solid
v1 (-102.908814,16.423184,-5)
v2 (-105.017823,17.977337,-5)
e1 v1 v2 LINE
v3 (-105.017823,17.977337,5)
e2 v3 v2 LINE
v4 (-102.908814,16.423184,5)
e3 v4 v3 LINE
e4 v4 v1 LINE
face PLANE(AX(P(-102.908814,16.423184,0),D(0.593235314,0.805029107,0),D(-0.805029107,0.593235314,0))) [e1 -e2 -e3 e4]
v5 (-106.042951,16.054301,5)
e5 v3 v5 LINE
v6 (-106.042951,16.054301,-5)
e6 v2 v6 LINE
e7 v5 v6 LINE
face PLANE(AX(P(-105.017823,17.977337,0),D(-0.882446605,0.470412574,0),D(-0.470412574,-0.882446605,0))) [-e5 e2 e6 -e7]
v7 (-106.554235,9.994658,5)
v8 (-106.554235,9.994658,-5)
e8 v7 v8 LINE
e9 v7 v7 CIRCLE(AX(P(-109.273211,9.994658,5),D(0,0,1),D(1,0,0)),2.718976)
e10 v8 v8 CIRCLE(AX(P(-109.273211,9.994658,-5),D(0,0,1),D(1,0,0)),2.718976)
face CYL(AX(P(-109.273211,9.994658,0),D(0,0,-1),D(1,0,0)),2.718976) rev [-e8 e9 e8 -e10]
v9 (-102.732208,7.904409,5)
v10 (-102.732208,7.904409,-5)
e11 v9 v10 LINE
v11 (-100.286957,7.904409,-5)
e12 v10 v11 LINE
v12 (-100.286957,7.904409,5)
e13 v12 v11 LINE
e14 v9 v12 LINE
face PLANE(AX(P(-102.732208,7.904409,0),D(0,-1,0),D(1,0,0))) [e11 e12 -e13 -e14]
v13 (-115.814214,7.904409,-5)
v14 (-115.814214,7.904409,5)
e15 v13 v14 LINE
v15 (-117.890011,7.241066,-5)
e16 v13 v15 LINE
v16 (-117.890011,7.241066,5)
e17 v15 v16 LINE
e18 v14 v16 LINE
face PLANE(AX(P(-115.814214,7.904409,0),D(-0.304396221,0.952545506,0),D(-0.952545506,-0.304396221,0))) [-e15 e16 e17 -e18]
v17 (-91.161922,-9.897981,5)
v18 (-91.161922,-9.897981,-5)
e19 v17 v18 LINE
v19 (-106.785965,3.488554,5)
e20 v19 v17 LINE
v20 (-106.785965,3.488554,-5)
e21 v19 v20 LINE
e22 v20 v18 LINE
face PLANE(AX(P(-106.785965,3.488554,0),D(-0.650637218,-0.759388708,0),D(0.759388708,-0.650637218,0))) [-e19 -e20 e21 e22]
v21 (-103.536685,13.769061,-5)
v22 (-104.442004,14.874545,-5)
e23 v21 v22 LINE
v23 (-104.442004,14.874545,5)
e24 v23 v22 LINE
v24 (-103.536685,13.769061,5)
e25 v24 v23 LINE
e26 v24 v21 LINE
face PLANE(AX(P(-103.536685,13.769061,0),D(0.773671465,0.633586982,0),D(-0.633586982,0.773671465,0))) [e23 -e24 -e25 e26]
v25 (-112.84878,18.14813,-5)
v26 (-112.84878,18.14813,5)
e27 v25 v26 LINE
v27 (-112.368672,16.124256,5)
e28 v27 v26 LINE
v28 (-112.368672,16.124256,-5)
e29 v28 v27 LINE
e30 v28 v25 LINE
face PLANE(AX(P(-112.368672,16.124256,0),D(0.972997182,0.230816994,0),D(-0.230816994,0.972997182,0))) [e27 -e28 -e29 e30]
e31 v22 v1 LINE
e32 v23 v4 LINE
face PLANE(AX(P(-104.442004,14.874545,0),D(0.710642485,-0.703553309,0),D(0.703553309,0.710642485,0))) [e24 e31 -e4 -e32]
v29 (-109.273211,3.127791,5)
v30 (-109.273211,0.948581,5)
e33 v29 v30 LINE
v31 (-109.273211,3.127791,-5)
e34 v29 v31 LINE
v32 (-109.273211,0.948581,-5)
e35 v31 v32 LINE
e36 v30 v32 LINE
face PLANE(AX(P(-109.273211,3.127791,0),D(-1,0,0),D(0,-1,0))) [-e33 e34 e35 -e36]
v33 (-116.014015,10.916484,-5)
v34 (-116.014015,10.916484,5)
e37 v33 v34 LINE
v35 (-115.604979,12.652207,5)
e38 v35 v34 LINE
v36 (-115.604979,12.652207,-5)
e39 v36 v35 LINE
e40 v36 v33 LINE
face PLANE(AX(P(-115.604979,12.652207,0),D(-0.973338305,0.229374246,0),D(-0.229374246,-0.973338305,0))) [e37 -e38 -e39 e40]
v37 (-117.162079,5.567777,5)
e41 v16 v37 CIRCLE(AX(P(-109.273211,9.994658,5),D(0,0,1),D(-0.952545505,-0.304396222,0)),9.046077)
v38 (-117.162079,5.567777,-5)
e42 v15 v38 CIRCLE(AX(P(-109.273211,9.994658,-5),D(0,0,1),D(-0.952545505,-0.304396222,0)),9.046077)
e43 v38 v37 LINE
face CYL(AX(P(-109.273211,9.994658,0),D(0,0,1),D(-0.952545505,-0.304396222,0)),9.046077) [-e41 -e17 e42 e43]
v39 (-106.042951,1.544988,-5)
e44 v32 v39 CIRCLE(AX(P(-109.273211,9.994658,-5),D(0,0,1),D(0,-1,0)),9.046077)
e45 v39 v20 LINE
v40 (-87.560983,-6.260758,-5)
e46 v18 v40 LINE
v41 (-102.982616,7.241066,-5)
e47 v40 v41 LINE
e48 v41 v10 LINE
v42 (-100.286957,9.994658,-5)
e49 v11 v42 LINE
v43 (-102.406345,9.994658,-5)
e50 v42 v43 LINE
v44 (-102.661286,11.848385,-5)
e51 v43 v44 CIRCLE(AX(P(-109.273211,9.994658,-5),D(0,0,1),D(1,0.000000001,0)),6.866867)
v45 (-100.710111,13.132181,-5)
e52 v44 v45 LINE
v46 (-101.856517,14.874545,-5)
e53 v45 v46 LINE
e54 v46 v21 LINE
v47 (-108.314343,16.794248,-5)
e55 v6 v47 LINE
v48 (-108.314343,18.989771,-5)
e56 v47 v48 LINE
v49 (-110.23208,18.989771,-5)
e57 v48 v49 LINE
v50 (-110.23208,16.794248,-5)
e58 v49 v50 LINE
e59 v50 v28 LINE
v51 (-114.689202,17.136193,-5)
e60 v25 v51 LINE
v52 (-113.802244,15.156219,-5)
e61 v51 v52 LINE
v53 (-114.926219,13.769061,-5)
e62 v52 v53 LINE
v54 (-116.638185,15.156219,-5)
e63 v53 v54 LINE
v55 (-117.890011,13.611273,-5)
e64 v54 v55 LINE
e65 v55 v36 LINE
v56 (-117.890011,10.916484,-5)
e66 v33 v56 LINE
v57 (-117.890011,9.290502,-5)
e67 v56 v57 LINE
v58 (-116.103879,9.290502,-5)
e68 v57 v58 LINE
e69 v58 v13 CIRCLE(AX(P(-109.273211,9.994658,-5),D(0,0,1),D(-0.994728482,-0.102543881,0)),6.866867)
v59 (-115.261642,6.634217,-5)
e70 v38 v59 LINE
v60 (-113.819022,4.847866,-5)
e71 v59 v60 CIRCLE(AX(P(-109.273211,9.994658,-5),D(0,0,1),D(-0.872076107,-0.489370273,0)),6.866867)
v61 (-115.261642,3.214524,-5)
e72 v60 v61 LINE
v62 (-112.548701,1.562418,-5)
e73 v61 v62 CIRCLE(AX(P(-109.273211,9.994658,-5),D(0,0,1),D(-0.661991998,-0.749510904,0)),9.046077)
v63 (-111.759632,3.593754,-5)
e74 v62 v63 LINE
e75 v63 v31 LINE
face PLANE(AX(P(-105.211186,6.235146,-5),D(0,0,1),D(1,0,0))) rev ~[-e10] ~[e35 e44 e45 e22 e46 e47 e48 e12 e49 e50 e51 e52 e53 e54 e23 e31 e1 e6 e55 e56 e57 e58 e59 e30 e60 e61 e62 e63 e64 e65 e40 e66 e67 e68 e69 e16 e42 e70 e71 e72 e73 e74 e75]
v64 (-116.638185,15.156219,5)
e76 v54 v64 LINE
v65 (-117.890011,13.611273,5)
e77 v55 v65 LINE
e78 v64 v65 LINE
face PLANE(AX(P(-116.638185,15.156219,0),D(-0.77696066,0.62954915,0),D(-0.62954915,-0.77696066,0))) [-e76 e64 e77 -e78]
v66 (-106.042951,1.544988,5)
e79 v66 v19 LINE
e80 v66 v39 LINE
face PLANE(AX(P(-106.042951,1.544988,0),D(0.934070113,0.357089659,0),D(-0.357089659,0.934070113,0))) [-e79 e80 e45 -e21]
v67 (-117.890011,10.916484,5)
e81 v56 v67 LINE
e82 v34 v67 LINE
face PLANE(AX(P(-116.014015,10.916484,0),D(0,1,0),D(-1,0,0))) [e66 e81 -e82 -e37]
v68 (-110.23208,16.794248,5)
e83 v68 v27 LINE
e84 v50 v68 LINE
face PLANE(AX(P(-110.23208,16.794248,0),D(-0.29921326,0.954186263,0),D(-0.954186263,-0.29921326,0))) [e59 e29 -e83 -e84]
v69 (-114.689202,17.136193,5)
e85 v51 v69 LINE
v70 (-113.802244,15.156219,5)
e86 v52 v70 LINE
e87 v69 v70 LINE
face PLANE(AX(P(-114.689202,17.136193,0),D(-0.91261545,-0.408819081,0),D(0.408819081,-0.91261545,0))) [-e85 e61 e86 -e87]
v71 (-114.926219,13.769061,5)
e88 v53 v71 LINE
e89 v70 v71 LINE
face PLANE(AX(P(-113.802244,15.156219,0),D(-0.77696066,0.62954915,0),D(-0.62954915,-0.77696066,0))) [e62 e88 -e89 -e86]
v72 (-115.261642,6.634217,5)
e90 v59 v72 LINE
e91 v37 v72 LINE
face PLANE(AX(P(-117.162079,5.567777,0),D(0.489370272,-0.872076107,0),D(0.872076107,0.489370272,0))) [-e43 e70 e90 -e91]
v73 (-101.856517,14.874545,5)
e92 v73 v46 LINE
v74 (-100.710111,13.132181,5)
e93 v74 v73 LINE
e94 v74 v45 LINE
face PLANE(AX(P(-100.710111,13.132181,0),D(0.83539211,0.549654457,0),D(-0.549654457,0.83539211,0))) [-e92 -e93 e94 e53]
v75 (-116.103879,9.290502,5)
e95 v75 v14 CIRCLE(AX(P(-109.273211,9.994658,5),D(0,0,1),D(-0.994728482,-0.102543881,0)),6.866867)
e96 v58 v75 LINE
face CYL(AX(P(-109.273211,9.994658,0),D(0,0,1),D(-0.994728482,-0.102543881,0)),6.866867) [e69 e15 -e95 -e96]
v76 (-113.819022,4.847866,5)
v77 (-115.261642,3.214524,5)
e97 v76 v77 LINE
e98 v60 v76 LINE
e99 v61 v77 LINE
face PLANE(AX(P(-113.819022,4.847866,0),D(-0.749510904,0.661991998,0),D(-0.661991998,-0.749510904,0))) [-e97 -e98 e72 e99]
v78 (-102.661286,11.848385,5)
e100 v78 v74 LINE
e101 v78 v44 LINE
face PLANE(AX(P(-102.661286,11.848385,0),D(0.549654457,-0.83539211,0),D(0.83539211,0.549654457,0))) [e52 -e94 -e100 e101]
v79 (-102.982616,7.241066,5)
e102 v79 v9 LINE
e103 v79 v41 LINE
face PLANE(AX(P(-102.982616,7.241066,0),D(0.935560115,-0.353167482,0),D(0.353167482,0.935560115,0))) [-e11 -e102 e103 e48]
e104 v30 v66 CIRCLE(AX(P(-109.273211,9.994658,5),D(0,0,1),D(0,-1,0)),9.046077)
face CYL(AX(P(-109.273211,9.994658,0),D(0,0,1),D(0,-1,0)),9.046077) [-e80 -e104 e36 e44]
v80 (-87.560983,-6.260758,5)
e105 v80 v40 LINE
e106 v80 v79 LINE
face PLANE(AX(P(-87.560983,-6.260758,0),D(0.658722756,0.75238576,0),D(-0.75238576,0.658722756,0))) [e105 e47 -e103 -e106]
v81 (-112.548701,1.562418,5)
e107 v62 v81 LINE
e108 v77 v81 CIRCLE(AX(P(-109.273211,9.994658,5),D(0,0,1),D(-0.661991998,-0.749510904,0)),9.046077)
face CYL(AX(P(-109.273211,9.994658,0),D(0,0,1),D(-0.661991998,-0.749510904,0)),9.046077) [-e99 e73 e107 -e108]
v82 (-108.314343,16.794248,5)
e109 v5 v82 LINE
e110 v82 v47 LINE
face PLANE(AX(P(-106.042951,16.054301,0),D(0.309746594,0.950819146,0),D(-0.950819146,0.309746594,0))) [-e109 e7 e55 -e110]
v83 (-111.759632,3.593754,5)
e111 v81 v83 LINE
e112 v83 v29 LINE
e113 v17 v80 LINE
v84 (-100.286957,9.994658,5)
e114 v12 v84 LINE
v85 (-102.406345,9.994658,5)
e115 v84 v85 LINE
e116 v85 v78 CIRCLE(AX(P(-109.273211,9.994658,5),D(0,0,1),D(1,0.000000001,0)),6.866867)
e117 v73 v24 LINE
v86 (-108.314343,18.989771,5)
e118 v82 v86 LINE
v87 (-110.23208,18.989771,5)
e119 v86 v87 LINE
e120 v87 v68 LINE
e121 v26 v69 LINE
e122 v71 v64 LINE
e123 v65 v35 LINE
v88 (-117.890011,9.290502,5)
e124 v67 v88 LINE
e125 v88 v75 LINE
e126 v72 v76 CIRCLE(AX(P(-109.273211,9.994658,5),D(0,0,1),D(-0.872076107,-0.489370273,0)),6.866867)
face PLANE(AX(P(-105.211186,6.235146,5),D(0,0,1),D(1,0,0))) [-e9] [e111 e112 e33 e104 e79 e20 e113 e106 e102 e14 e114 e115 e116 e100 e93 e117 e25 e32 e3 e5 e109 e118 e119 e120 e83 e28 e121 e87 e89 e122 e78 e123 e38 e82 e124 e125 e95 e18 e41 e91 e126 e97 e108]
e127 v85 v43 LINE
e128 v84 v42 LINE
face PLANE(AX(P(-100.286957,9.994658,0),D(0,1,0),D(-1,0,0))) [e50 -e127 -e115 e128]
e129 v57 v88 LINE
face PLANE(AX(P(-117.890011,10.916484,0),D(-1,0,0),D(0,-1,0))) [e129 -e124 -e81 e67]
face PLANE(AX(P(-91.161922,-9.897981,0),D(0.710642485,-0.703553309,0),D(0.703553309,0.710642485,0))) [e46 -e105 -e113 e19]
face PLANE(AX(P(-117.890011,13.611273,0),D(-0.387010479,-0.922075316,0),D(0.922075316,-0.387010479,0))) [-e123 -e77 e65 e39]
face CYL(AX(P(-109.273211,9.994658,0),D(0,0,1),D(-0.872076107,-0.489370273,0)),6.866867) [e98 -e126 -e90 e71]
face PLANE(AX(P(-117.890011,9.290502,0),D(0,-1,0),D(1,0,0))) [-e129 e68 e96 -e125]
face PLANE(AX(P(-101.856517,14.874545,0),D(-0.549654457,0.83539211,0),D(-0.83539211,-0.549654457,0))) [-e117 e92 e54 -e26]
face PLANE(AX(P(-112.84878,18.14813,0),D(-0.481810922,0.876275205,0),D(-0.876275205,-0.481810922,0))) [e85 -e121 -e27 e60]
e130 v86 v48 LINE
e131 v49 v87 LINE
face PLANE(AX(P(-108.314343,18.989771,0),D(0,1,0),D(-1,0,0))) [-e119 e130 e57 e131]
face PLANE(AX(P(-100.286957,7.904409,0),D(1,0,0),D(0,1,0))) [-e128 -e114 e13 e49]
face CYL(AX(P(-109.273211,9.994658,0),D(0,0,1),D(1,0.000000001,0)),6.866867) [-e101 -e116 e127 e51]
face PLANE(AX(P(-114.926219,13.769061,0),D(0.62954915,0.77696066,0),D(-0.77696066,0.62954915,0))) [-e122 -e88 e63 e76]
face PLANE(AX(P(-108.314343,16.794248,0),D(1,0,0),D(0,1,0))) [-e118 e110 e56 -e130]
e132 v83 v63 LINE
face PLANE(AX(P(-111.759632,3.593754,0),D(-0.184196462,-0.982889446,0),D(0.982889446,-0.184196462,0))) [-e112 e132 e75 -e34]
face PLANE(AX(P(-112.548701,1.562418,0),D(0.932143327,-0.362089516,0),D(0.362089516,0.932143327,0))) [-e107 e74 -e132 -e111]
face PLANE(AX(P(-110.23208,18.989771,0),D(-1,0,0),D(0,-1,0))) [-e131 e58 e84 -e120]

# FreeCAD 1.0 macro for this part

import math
import FreeCAD as App
import Part
import Sketcher
Q = App.Units.Quantity

doc = App.newDocument("Part")
params = doc.addObject("Spreadsheet::Sheet", "Params")
for row, (alias, value) in enumerate([
    ("pad1_length", "10 mm"),
], start=1):
    params.set(f"A{row}", alias)
    params.set(f"B{row}", "=" + value)
    params.setAlias(f"B{row}", alias)

body = doc.addObject("PartDesign::Body", "Body")

sketch1 = doc.addObject("Sketcher::SketchObject", "Sketch")
body.addObject(sketch1)
sketch1.AttachmentSupport = (doc.XY_Plane, [""])
sketch1.MapMode = "FlatFace"
sketch1.addGeometry([
    Part.LineSegment(App.Vector(-108.314343, 18.989771, 0), App.Vector(-110.23208, 18.989771, 0)),
    Part.LineSegment(App.Vector(-110.23208, 18.989771, 0), App.Vector(-110.23208, 16.794248, 0)),
    Part.LineSegment(App.Vector(-110.23208, 16.794248, 0), App.Vector(-112.368672, 16.124256, 0)),
    Part.LineSegment(App.Vector(-112.368672, 16.124256, 0), App.Vector(-112.84878, 18.14813, 0)),
    Part.LineSegment(App.Vector(-112.84878, 18.14813, 0), App.Vector(-114.689202, 17.136193, 0)),
    Part.LineSegment(App.Vector(-114.689202, 17.136193, 0), App.Vector(-113.802244, 15.156219, 0)),
    Part.LineSegment(App.Vector(-113.802244, 15.156219, 0), App.Vector(-114.926219, 13.769061, 0)),
    Part.LineSegment(App.Vector(-114.926219, 13.769061, 0), App.Vector(-116.638185, 15.156219, 0)),
    Part.LineSegment(App.Vector(-116.638185, 15.156219, 0), App.Vector(-117.890011, 13.611273, 0)),
    Part.LineSegment(App.Vector(-117.890011, 13.611273, 0), App.Vector(-115.604979, 12.652207, 0)),
    Part.LineSegment(App.Vector(-115.604979, 12.652207, 0), App.Vector(-116.014015, 10.916484, 0)),
    Part.LineSegment(App.Vector(-116.014015, 10.916484, 0), App.Vector(-117.890011, 10.916484, 0)),
    Part.LineSegment(App.Vector(-117.890011, 10.916484, 0), App.Vector(-117.890011, 9.290502, 0)),
    Part.LineSegment(App.Vector(-117.890011, 9.290502, 0), App.Vector(-116.103879, 9.290502, 0)),
    Part.ArcOfCircle(Part.Circle(App.Vector(-109.273211, 9.994658, 0), App.Vector(0, 0, 1), 6.866867), math.radians(-174.114323), math.radians(-162.278157)),
    Part.LineSegment(App.Vector(-115.814214, 7.904409, 0), App.Vector(-117.890011, 7.241066, 0)),
    Part.ArcOfCircle(Part.Circle(App.Vector(-109.273211, 9.994658, 0), App.Vector(0, 0, 1), 9.046077), math.radians(-162.278157), math.radians(-150.7008)),
    Part.LineSegment(App.Vector(-117.162079, 5.567777, 0), App.Vector(-115.261642, 6.634217, 0)),
    Part.ArcOfCircle(Part.Circle(App.Vector(-109.273211, 9.994658, 0), App.Vector(0, 0, 1), 6.866867), math.radians(-150.7008), math.radians(-131.451971)),
    Part.LineSegment(App.Vector(-113.819022, 4.847866, 0), App.Vector(-115.261642, 3.214524, 0)),
    Part.ArcOfCircle(Part.Circle(App.Vector(-109.273211, 9.994658, 0), App.Vector(0, 0, 1), 9.046077), math.radians(-131.451971), math.radians(-111.228576)),
    Part.LineSegment(App.Vector(-112.548701, 1.562418, 0), App.Vector(-111.759632, 3.593754, 0)),
    Part.LineSegment(App.Vector(-111.759632, 3.593754, 0), App.Vector(-109.273211, 3.127791, 0)),
    Part.LineSegment(App.Vector(-109.273211, 3.127791, 0), App.Vector(-109.273211, 0.948581, 0)),
    Part.ArcOfCircle(Part.Circle(App.Vector(-109.273211, 9.994658, 0), App.Vector(0, 0, 1), 9.046077), math.radians(-90), math.radians(-69.078431)),
    Part.LineSegment(App.Vector(-106.042951, 1.544988, 0), App.Vector(-106.785965, 3.488554, 0)),
    Part.LineSegment(App.Vector(-106.785965, 3.488554, 0), App.Vector(-91.161922, -9.897981, 0)),
    Part.LineSegment(App.Vector(-91.161922, -9.897981, 0), App.Vector(-87.560983, -6.260758, 0)),
    Part.LineSegment(App.Vector(-87.560983, -6.260758, 0), App.Vector(-102.982616, 7.241066, 0)),
    Part.LineSegment(App.Vector(-102.982616, 7.241066, 0), App.Vector(-102.732208, 7.904409, 0)),
    Part.LineSegment(App.Vector(-102.732208, 7.904409, 0), App.Vector(-100.286957, 7.904409, 0)),
    Part.LineSegment(App.Vector(-100.286957, 7.904409, 0), App.Vector(-100.286957, 9.994658, 0)),
    Part.LineSegment(App.Vector(-100.286957, 9.994658, 0), App.Vector(-102.406345, 9.994658, 0)),
    Part.ArcOfCircle(Part.Circle(App.Vector(-109.273211, 9.994658, 0), App.Vector(0, 0, 1), 6.866867), math.radians(0), math.radians(15.661441)),
    Part.LineSegment(App.Vector(-102.661286, 11.848385, 0), App.Vector(-100.710111, 13.132181, 0)),
    Part.LineSegment(App.Vector(-100.710111, 13.132181, 0), App.Vector(-101.856517, 14.874545, 0)),
    Part.LineSegment(App.Vector(-101.856517, 14.874545, 0), App.Vector(-103.536685, 13.769061, 0)),
    Part.LineSegment(App.Vector(-103.536685, 13.769061, 0), App.Vector(-104.442004, 14.874545, 0)),
    Part.LineSegment(App.Vector(-104.442004, 14.874545, 0), App.Vector(-102.908814, 16.423184, 0)),
    Part.LineSegment(App.Vector(-102.908814, 16.423184, 0), App.Vector(-105.017823, 17.977337, 0)),
    Part.LineSegment(App.Vector(-105.017823, 17.977337, 0), App.Vector(-106.042951, 16.054301, 0)),
    Part.LineSegment(App.Vector(-106.042951, 16.054301, 0), App.Vector(-108.314343, 16.794248, 0)),
    Part.LineSegment(App.Vector(-108.314343, 16.794248, 0), App.Vector(-108.314343, 18.989771, 0)),
    Part.Circle(App.Vector(-109.273211, 9.994658, 0), App.Vector(0, 0, 1), 2.718976),
], False)
sketch1.addConstraint([
    Sketcher.Constraint("Coincident", 0, 2, 1, 1),
    Sketcher.Constraint("Coincident", 1, 2, 2, 1),
    Sketcher.Constraint("Coincident", 2, 2, 3, 1),
    Sketcher.Constraint("Coincident", 3, 2, 4, 1),
    Sketcher.Constraint("Coincident", 4, 2, 5, 1),
    Sketcher.Constraint("Coincident", 5, 2, 6, 1),
    Sketcher.Constraint("Coincident", 6, 2, 7, 1),
    Sketcher.Constraint("Coincident", 7, 2, 8, 1),
    Sketcher.Constraint("Coincident", 8, 2, 9, 1),
    Sketcher.Constraint("Coincident", 9, 2, 10, 1),
    Sketcher.Constraint("Coincident", 10, 2, 11, 1),
    Sketcher.Constraint("Coincident", 11, 2, 12, 1),
    Sketcher.Constraint("Coincident", 12, 2, 13, 1),
    Sketcher.Constraint("Coincident", 13, 2, 14, 1),
    Sketcher.Constraint("Coincident", 14, 2, 15, 1),
    Sketcher.Constraint("Coincident", 15, 2, 16, 1),
    Sketcher.Constraint("Coincident", 16, 2, 17, 1),
    Sketcher.Constraint("Coincident", 17, 2, 18, 1),
    Sketcher.Constraint("Coincident", 18, 2, 19, 1),
    Sketcher.Constraint("Coincident", 19, 2, 20, 1),
    Sketcher.Constraint("Coincident", 20, 2, 21, 1),
    Sketcher.Constraint("Coincident", 21, 2, 22, 1),
    Sketcher.Constraint("Coincident", 22, 2, 23, 1),
    Sketcher.Constraint("Coincident", 23, 2, 24, 1),
    Sketcher.Constraint("Coincident", 24, 2, 25, 1),
    Sketcher.Constraint("Coincident", 25, 2, 26, 1),
    Sketcher.Constraint("Coincident", 26, 2, 27, 1),
    Sketcher.Constraint("Coincident", 27, 2, 28, 1),
    Sketcher.Constraint("Coincident", 28, 2, 29, 1),
    Sketcher.Constraint("Coincident", 29, 2, 30, 1),
    Sketcher.Constraint("Coincident", 30, 2, 31, 1),
    Sketcher.Constraint("Coincident", 31, 2, 32, 1),
    Sketcher.Constraint("Coincident", 32, 2, 33, 1),
    Sketcher.Constraint("Coincident", 33, 2, 34, 1),
    Sketcher.Constraint("Coincident", 34, 2, 35, 1),
    Sketcher.Constraint("Coincident", 35, 2, 36, 1),
    Sketcher.Constraint("Coincident", 36, 2, 37, 1),
    Sketcher.Constraint("Coincident", 37, 2, 38, 1),
    Sketcher.Constraint("Coincident", 38, 2, 39, 1),
    Sketcher.Constraint("Coincident", 39, 2, 40, 1),
    Sketcher.Constraint("Coincident", 40, 2, 41, 1),
    Sketcher.Constraint("Coincident", 41, 2, 42, 1),
    Sketcher.Constraint("Coincident", 42, 2, 0, 1),
    Sketcher.Constraint("Horizontal", 0),
    Sketcher.Constraint("Vertical", 1),
    Sketcher.Constraint("Horizontal", 11),
    Sketcher.Constraint("Vertical", 12),
    Sketcher.Constraint("Horizontal", 13),
    Sketcher.Constraint("Vertical", 23),
    Sketcher.Constraint("Horizontal", 30),
    Sketcher.Constraint("Vertical", 31),
    Sketcher.Constraint("Horizontal", 32),
    Sketcher.Constraint("Vertical", 42),
    Sketcher.Constraint("Coincident", 16, 3, 14, 3),
    Sketcher.Constraint("Coincident", 18, 3, 14, 3),
    Sketcher.Constraint("Coincident", 20, 3, 14, 3),
    Sketcher.Constraint("Coincident", 24, 3, 14, 3),
    Sketcher.Constraint("Coincident", 33, 3, 14, 3),
    Sketcher.Constraint("Coincident", 43, 3, 14, 3),
    Sketcher.Constraint("Equal", 14, 18),
    Sketcher.Constraint("Equal", 16, 20),
    Sketcher.Constraint("Equal", 20, 24),
    Sketcher.Constraint("Equal", 18, 33),
    Sketcher.Constraint("Perpendicular", 6, 7),
    Sketcher.Constraint("Perpendicular", 7, 8),
    Sketcher.Constraint("Perpendicular", 34, 35),
    Sketcher.Constraint("Perpendicular", 35, 36),
    Sketcher.Constraint("Parallel", 27, 38),
    Sketcher.Constraint("Horizontal", 5, 2, 7, 2),
    Sketcher.Constraint("Horizontal", 15, 2, 28, 2),
    Sketcher.Constraint("Horizontal", 14, 2, 29, 2),
    Sketcher.Constraint("Horizontal", 43, 3, 31, 2),
    Sketcher.Constraint("Horizontal", 6, 2, 36, 2),
    Sketcher.Constraint("Horizontal", 35, 2, 37, 2),
    Sketcher.Constraint("Horizontal", 1, 2, 41, 2),
    Sketcher.Constraint("Vertical", 8, 2, 11, 2),
    Sketcher.Constraint("Vertical", 12, 2, 15, 2),
    Sketcher.Constraint("Vertical", 17, 2, 19, 2),
    Sketcher.Constraint("Vertical", 43, 3, 22, 2),
    Sketcher.Constraint("Vertical", 24, 2, 40, 2),
    Sketcher.Constraint("Equal", 19, 21),
    Sketcher.Constraint("Equal", 21, 38),
    Sketcher.Constraint("Equal", 38, 40),
    Sketcher.Constraint("Diameter", 43, Q("5.437952 mm")),
    Sketcher.Constraint("Radius", 14, Q("6.866867 mm")),
    Sketcher.Constraint("Radius", 16, Q("9.046077 mm")),
    Sketcher.Constraint("Distance", 26, Q("20.5745 mm")),
    Sketcher.Constraint("DistanceX", 13, 1, 13, 2, Q("1.786132 mm")),
    Sketcher.Constraint("DistanceX", 30, 1, 30, 2, Q("2.445252 mm")),
    Sketcher.Constraint("DistanceX", 32, 2, 32, 1, Q("2.119388 mm")),
    Sketcher.Constraint("DistanceY", 12, 2, 12, 1, Q("1.625981 mm")),
    Sketcher.Constraint("DistanceY", 23, 2, 23, 1, Q("2.17921 mm")),
    Sketcher.Constraint("DistanceY", 31, 1, 31, 2, Q("2.090248 mm")),
    Sketcher.Constraint("DistanceX", 20, 2, -1, 1, Q("112.548701 mm")),
    Sketcher.Constraint("DistanceY", -1, 1, 40, 2, Q("16.054301 mm")),
    Sketcher.Constraint("DistanceY", 33, 3, 2, 2, Q("6.129599 mm")),
    Sketcher.Constraint("DistanceX", 3, 2, 0, 2, Q("2.616701 mm")),
    Sketcher.Constraint("DistanceX", 13, 2, 9, 2, Q("0.4989 mm")),
    Sketcher.Constraint("DistanceX", 10, 2, 14, 2, Q("0.199801 mm")),
    Sketcher.Constraint("DistanceX", 16, 2, 13, 2, Q("1.058199 mm")),
    Sketcher.Constraint("DistanceY", 18, 2, 15, 2, Q("2.3932 mm")),
    Sketcher.Constraint("DistanceY", 20, 2, 17, 2, Q("5.0718 mm")),
    Sketcher.Constraint("DistanceY", 25, 2, 21, 2, Q("0.105199 mm")),
    Sketcher.Constraint("DistanceY", 26, 2, 20, 2, Q("11.460399 mm")),
    Sketcher.Constraint("DistanceX", 36, 2, 33, 2, Q("0.875399 mm")),
    Sketcher.Constraint("DistanceY", 33, 2, 38, 2, Q("4.574799 mm")),
    Sketcher.Constraint("Distance", 3, Q("2.080041 mm")),
    Sketcher.Constraint("Distance", 4, Q("2.100278 mm")),
    Sketcher.Constraint("Distance", 5, Q("2.16956 mm")),
    Sketcher.Constraint("Distance", 8, Q("1.988448 mm")),
    Sketcher.Constraint("Distance", 9, Q("2.47814 mm")),
    Sketcher.Constraint("Distance", 10, Q("1.783268 mm")),
    Sketcher.Constraint("Distance", 25, Q("2.08075 mm")),
    Sketcher.Constraint("Distance", 34, Q("2.33564 mm")),
    Sketcher.Constraint("Distance", 37, Q("1.42888 mm")),
    Sketcher.Constraint("Distance", 41, Q("2.388879 mm")),
    Sketcher.Constraint("DistanceX", 0, 2, 0, 1, Q("1.917737 mm")),
    Sketcher.Constraint("DistanceX", 11, 2, 11, 1, Q("1.875996 mm")),
    Sketcher.Constraint("DistanceY", 1, 2, 1, 1, Q("2.195524 mm")),
    Sketcher.Constraint("DistanceX", 14, 3, -1, 1, Q("109.273211 mm")),
    Sketcher.Constraint("DistanceX", 0, 2, -1, 1, Q("110.23208 mm")),
    Sketcher.Constraint("DistanceY", -1, 1, 0, 2, Q("18.989771 mm")),
    Sketcher.Constraint("DistanceX", 2, 2, -1, 1, Q("112.368672 mm")),
    Sketcher.Constraint("DistanceY", -1, 1, 3, 2, Q("18.14813 mm")),
    Sketcher.Constraint("DistanceY", -1, 1, 5, 2, Q("15.156219 mm")),
    Sketcher.Constraint("DistanceX", 6, 2, -1, 1, Q("114.926219 mm")),
    Sketcher.Constraint("DistanceX", 21, 2, -1, 1, Q("111.759632 mm")),
    Sketcher.Constraint("DistanceY", 27, 2, -1, 1, Q("6.260758 mm")),
    Sketcher.Constraint("DistanceX", 34, 2, -1, 1, Q("100.710111 mm")),
    Sketcher.Constraint("DistanceY", -1, 1, 34, 2, Q("13.132181 mm")),
    Sketcher.Constraint("DistanceX", 25, 2, 28, 2, Q("3.803349 mm")),
    Sketcher.Constraint("DistanceX", 39, 2, 38, 2, Q("2.109009 mm")),
])
pad1 = doc.addObject("PartDesign::Pad", "Pad")
body.addObject(pad1)
pad1.Profile = sketch1
pad1.setExpression("Length", "Params.pad1_length")
pad1.Midplane = True

doc.recompute()
